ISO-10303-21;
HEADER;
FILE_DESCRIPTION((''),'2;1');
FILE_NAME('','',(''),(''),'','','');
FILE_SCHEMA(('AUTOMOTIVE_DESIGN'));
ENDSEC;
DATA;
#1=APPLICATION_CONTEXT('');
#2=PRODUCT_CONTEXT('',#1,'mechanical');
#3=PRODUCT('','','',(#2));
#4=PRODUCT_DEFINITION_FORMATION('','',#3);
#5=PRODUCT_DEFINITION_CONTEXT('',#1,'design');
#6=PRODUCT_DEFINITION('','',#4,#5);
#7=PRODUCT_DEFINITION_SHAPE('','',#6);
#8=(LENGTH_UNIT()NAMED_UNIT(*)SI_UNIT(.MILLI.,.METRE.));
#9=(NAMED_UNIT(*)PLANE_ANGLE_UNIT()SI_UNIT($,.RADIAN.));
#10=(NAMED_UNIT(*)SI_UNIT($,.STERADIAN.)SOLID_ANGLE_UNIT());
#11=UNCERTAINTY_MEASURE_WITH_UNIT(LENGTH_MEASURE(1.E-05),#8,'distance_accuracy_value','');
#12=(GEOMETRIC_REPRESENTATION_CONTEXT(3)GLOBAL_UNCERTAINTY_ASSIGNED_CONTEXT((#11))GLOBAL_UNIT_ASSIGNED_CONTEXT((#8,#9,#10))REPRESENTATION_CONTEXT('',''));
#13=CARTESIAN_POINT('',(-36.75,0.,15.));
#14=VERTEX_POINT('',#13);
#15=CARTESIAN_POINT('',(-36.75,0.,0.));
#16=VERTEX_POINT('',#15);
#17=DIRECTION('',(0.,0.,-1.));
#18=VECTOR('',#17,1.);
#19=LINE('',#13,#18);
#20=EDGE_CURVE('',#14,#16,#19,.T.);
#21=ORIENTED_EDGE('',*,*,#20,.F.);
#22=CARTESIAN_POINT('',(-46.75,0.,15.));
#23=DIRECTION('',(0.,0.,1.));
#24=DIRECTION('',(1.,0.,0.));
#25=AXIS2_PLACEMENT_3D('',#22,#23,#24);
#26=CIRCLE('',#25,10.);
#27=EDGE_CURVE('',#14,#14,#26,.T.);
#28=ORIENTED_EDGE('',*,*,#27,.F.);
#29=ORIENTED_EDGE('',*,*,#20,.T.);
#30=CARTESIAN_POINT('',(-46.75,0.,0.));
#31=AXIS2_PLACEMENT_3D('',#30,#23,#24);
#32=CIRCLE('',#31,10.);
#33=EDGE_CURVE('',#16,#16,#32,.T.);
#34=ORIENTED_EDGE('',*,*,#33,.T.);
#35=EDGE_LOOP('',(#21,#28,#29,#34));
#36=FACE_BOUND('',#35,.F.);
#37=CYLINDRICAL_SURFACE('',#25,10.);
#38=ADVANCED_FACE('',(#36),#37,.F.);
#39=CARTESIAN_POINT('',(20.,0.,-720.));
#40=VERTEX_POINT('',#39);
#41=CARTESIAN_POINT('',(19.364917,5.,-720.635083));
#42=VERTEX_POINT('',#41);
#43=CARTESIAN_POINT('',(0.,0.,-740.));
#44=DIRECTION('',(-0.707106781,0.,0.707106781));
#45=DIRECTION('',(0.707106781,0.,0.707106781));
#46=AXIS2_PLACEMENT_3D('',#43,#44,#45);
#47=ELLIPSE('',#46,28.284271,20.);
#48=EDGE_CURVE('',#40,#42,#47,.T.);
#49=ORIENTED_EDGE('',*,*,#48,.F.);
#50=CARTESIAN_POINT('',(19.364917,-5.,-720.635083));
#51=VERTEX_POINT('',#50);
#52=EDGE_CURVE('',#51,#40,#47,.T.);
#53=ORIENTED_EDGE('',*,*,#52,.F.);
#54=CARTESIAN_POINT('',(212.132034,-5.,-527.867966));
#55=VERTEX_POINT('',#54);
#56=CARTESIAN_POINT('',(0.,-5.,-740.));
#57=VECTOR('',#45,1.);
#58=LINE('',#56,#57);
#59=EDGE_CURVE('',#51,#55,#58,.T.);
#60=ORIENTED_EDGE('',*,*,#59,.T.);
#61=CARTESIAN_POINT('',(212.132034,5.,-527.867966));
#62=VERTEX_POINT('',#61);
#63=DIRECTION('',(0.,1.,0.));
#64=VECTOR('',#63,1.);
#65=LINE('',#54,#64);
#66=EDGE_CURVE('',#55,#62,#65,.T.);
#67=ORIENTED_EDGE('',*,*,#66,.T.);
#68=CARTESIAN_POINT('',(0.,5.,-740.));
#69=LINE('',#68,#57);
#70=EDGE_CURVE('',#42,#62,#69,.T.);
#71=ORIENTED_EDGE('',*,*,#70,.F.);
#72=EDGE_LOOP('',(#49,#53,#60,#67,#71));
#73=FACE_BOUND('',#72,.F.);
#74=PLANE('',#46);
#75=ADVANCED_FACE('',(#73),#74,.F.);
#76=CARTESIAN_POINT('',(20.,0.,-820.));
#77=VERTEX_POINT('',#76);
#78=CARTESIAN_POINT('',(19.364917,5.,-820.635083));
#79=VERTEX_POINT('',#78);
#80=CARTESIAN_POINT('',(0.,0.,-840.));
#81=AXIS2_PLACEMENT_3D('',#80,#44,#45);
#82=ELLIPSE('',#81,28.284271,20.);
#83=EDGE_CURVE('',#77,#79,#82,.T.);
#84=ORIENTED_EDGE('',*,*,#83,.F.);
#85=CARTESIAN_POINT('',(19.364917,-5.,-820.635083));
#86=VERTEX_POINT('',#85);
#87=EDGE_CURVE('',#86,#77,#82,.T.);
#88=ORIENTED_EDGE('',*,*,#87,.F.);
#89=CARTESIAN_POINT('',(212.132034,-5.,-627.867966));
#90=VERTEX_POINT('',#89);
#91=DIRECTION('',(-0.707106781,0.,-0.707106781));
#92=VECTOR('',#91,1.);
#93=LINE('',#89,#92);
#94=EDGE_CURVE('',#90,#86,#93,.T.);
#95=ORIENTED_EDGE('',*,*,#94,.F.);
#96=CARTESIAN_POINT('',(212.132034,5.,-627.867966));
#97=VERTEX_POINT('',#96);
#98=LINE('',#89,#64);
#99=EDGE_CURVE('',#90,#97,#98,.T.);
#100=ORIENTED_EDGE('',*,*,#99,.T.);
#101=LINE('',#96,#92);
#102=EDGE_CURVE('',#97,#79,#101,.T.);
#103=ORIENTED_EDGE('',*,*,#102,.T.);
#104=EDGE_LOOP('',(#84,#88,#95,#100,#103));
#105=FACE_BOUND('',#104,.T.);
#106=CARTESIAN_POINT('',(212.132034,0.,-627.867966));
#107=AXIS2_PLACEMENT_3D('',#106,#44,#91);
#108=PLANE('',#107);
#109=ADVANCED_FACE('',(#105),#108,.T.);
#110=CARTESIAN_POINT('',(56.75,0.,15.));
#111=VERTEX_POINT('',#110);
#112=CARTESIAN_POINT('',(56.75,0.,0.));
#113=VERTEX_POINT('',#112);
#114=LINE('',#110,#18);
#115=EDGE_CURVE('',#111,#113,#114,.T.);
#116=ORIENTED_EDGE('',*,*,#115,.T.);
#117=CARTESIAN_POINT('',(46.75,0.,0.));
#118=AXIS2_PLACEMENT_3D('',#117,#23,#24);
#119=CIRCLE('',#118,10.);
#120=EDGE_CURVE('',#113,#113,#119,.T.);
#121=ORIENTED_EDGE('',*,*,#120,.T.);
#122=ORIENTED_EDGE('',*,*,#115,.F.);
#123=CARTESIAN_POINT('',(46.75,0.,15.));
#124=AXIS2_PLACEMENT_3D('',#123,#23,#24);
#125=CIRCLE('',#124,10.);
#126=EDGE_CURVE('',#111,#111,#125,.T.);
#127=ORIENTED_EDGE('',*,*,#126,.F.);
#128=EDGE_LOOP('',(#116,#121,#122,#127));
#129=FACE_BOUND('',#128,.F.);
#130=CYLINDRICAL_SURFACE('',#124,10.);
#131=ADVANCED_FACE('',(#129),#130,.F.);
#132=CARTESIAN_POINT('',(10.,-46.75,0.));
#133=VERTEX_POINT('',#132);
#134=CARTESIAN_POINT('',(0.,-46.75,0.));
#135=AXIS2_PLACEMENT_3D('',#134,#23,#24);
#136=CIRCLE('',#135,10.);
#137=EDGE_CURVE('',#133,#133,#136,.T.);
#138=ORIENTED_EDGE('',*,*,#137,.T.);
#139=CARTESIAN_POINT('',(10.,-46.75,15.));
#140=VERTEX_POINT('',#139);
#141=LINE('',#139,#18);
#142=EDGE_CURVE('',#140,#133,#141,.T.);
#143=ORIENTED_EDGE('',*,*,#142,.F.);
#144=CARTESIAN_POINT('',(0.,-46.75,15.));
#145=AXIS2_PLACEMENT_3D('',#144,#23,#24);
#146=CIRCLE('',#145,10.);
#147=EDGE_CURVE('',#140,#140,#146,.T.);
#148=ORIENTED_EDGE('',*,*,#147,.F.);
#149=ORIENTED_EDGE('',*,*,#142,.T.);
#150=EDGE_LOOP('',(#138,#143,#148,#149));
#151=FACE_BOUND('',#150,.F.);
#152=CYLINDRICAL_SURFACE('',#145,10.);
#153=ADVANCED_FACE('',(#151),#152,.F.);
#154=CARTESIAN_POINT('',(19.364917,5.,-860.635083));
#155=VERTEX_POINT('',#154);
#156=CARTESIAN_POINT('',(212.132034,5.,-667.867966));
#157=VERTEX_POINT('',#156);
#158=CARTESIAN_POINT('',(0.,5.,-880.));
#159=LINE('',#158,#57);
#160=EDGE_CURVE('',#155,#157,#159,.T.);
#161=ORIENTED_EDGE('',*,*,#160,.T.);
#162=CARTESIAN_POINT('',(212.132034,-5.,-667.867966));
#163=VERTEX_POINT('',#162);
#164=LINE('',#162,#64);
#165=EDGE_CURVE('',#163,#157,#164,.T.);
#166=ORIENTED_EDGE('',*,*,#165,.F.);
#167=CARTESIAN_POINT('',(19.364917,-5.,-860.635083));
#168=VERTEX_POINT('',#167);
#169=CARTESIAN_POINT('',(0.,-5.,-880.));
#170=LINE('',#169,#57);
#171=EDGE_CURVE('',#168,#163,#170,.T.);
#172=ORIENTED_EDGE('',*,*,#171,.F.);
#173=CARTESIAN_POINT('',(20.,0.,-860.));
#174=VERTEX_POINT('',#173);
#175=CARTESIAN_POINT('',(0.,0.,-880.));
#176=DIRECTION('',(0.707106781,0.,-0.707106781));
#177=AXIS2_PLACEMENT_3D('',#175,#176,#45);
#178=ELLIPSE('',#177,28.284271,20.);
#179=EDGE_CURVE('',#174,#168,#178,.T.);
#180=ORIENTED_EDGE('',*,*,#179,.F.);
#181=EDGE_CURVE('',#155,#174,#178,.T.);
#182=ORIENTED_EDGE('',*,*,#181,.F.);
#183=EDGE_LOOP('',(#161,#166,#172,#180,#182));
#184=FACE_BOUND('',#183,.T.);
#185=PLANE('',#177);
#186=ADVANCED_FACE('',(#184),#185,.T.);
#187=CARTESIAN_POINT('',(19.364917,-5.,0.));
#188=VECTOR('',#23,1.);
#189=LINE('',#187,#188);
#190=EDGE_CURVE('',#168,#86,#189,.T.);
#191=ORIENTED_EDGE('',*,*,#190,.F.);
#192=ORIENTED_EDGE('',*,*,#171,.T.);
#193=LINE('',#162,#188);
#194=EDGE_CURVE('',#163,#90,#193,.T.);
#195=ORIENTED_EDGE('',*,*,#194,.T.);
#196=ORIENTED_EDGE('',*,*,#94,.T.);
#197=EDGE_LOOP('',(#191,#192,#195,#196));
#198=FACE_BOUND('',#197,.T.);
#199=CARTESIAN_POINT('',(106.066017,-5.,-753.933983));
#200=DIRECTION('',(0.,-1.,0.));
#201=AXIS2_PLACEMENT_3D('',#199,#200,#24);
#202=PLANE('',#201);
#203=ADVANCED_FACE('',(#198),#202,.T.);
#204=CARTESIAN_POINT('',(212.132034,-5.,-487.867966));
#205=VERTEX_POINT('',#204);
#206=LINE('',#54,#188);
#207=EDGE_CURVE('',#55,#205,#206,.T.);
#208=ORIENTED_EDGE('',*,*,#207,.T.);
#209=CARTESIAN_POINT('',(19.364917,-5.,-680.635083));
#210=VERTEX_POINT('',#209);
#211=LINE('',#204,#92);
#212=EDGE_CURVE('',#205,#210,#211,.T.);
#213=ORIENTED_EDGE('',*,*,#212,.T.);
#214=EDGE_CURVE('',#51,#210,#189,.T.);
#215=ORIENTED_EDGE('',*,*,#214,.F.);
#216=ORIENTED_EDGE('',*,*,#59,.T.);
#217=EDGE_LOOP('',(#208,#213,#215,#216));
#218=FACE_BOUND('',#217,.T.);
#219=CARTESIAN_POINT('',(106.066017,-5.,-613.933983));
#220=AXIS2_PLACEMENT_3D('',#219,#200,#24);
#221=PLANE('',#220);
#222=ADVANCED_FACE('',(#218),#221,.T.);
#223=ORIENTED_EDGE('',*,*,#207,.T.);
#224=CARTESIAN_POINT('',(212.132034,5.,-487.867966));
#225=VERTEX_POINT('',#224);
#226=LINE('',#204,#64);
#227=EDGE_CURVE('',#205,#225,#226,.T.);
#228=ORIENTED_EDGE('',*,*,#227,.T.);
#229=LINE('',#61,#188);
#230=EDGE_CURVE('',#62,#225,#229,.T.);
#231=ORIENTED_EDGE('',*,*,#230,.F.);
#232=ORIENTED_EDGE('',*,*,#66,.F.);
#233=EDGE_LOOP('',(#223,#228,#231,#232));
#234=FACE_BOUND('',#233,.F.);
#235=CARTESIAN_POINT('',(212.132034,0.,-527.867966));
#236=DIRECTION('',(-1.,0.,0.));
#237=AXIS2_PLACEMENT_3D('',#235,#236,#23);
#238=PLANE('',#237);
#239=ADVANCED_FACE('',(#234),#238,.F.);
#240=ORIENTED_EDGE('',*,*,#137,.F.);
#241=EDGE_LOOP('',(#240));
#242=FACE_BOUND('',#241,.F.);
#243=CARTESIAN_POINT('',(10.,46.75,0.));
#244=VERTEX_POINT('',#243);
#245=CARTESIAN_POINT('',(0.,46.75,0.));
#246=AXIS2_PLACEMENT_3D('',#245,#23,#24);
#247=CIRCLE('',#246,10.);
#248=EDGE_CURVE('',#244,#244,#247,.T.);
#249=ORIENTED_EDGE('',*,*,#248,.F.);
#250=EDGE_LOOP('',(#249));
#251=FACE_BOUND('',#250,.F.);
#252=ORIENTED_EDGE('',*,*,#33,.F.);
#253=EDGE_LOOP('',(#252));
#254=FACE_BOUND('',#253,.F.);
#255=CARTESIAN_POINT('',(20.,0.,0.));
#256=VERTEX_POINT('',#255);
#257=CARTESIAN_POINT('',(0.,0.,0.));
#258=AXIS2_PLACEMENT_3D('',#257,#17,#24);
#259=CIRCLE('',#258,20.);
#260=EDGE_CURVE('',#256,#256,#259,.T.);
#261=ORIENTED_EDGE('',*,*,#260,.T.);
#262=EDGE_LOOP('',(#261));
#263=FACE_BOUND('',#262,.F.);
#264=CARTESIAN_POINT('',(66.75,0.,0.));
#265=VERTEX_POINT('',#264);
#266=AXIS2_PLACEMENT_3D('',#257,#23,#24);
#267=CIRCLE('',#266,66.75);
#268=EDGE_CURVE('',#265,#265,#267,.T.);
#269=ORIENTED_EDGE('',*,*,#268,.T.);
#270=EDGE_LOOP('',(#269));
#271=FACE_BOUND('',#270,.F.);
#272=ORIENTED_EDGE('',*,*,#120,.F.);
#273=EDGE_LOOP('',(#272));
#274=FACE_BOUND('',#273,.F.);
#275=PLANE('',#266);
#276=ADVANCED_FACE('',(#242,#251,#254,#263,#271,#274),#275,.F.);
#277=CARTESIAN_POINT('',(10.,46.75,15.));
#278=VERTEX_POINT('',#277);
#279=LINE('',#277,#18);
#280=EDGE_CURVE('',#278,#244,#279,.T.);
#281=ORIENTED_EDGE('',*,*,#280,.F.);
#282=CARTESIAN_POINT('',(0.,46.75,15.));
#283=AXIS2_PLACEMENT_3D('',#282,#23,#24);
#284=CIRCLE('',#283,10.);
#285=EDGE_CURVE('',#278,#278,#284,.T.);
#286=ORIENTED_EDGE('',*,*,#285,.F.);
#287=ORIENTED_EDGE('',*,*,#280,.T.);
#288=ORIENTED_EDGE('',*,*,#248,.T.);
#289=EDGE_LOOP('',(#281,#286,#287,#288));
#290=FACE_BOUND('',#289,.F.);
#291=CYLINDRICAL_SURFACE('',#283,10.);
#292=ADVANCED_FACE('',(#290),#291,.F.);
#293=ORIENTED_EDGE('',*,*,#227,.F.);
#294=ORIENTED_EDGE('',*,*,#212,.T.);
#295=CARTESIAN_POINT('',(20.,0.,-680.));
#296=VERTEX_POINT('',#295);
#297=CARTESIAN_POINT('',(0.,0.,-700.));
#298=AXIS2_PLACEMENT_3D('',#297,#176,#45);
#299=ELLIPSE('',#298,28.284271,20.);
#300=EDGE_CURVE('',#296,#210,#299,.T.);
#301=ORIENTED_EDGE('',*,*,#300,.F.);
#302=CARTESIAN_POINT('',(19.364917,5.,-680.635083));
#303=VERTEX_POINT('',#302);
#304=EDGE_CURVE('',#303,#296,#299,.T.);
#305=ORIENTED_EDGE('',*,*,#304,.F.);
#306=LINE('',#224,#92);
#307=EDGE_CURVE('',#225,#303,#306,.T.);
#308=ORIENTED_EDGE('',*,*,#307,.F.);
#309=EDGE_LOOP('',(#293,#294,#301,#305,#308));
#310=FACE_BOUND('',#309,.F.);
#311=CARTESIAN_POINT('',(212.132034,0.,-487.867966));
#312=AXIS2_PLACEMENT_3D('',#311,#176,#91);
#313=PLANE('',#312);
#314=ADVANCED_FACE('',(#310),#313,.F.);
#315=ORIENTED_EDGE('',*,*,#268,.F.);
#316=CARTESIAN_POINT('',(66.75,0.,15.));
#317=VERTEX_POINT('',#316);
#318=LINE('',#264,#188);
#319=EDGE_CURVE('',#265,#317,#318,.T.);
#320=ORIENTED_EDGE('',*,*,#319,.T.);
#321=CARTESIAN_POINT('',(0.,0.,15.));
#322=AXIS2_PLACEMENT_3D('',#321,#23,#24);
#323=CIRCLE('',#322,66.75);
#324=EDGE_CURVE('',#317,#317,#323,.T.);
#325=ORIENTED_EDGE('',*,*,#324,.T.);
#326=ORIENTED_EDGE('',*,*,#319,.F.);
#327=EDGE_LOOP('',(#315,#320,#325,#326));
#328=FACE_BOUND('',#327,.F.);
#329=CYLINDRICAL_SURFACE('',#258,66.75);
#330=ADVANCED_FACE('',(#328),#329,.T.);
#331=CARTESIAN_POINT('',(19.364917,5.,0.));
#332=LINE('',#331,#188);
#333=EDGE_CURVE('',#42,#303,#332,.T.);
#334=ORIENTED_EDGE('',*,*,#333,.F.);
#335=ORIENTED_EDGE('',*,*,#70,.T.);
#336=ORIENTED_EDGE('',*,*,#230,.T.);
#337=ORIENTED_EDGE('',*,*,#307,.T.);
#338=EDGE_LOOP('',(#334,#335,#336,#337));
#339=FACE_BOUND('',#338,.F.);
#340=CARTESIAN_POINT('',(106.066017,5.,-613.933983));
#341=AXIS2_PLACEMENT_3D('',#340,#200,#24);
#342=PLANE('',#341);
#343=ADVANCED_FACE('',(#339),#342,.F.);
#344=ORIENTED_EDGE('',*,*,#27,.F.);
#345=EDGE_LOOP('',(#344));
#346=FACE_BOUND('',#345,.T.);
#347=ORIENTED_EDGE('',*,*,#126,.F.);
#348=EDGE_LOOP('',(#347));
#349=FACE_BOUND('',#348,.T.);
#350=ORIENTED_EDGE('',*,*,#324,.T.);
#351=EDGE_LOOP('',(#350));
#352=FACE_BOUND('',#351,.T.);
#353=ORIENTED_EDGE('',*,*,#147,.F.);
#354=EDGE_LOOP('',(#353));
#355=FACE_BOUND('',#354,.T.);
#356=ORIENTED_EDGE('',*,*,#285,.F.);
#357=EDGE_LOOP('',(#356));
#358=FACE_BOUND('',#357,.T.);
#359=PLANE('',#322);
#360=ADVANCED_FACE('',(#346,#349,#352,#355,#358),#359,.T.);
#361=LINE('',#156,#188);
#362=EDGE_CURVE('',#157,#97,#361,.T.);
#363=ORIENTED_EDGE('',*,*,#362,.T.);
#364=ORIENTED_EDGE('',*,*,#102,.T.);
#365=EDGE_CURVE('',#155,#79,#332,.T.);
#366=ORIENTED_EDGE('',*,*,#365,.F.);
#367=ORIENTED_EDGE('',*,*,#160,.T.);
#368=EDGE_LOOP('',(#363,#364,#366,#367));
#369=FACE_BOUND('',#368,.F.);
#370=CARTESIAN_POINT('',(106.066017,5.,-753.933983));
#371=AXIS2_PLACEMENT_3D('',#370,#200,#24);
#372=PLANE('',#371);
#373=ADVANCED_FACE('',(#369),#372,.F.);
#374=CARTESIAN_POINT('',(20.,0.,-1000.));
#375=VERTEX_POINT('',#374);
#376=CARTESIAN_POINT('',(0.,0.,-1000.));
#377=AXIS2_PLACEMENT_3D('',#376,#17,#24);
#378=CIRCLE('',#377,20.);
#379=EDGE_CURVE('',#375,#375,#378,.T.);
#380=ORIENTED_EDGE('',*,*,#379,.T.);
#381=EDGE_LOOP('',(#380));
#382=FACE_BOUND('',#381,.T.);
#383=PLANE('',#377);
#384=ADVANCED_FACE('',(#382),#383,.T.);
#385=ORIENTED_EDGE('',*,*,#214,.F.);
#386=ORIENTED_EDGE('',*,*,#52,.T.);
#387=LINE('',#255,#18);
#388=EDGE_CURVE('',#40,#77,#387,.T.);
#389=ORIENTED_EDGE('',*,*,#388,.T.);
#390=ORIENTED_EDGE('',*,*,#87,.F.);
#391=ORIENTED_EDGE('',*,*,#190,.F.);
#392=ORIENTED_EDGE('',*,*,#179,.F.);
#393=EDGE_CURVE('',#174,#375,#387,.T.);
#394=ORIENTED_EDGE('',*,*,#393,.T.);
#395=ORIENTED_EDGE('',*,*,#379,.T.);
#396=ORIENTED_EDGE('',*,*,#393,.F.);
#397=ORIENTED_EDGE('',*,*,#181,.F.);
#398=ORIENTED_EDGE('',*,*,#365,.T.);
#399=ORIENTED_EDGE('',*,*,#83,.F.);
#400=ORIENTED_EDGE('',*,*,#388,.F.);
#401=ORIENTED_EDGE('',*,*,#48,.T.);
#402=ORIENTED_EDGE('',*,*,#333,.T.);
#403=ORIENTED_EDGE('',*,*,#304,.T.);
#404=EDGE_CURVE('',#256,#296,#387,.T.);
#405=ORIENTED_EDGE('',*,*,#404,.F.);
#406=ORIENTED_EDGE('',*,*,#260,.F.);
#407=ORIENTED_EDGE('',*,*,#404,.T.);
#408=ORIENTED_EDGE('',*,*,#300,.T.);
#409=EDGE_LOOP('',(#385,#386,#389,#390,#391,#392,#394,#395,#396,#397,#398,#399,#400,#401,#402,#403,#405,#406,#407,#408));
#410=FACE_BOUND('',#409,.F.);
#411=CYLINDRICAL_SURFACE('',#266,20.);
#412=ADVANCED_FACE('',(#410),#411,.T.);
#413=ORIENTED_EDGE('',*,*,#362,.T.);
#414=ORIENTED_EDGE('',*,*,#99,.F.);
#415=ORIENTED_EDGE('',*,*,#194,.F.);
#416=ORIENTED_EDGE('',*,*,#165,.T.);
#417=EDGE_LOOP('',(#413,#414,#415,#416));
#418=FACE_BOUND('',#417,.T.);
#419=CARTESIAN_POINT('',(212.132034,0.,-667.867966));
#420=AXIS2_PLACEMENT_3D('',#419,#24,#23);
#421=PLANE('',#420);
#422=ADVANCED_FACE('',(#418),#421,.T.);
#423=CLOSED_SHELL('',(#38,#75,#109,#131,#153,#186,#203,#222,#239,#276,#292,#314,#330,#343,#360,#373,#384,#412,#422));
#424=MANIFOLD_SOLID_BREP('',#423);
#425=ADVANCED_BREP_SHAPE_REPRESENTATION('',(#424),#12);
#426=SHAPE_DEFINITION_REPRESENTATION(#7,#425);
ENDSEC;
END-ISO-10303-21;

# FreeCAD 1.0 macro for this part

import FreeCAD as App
import Part
import Sketcher
Q = App.Units.Quantity


def add_polygon(sketch, points):
    """Adds a closed chain of lines whose ends are joined by coincident constraints."""
    first, n = sketch.GeometryCount, len(points)
    for a, b in zip(points, points[1:] + points[:1]):
        sketch.addGeometry(Part.LineSegment(App.Vector(*a, 0), App.Vector(*b, 0)), False)
    for i in range(n):
        sketch.addConstraint(Sketcher.Constraint("Coincident", first + i, 2, first + (i + 1) % n, 1))

doc = App.newDocument("Part")
params = doc.addObject("Spreadsheet::Sheet", "Params")
for row, (alias, value) in enumerate([
    ("sketch1_diameter", "133.5 mm"),
    ("pad1_length", "15 mm"),
    ("sketch2_diameter", "40 mm"),
    ("pad2_length", "1000 mm"),
    ("sketch3_height", "40 mm"),
    ("sketch3_length", "299.999999 mm"),
    ("pad3_length", "10 mm"),
    ("sketch4_diameter", "20 mm"),
    ("pocket1_length", "50.8 mm"),
], start=1):
    params.set(f"A{row}", alias)
    params.set(f"B{row}", "=" + value)
    params.setAlias(f"B{row}", alias)

body = doc.addObject("PartDesign::Body", "Body")

sketch1 = body.newObject("Sketcher::SketchObject", "Sketch")
sketch1.AttachmentSupport = (doc.getObject("XY_Plane"), [""])
sketch1.MapMode = "FlatFace"
sketch1.addGeometry(Part.Circle(App.Vector(0, 0, 0), App.Vector(0, 0, 1), 66.75), False)
sketch1.addConstraint(Sketcher.Constraint("Coincident", 0, 3, -1, 1))
sketch1.addConstraint(Sketcher.Constraint("Diameter", 0, Q("133.5 mm")))
sketch1.setExpression("Constraints[1]", "Params.sketch1_diameter")
pad1 = body.newObject("PartDesign::Pad", "Pad")
pad1.Profile = sketch1
pad1.setExpression("Length", "Params.pad1_length")

sketch2 = body.newObject("Sketcher::SketchObject", "Sketch001")
sketch2.AttachmentSupport = (doc.getObject("XY_Plane"), [""])
sketch2.MapMode = "FlatFace"
sketch2.addGeometry(Part.Circle(App.Vector(0, 0, 0), App.Vector(0, 0, 1), 20), False)
sketch2.addConstraint(Sketcher.Constraint("Coincident", 0, 3, -1, 1))
sketch2.addConstraint(Sketcher.Constraint("Diameter", 0, Q("40 mm")))
sketch2.setExpression("Constraints[1]", "Params.sketch2_diameter")
pad2 = body.newObject("PartDesign::Pad", "Pad001")
pad2.Profile = sketch2
pad2.setExpression("Length", "Params.pad2_length")
pad2.Reversed = True

sketch3 = body.newObject("Sketcher::SketchObject", "Sketch002")
sketch3.AttachmentSupport = (doc.getObject("XZ_Plane"), [""])
sketch3.MapMode = "FlatFace"
add_polygon(sketch3, [(212.132034, -487.867966), (0, -700), (0, -740), (212.132034, -527.867966)])
add_polygon(sketch3, [(212.132034, -627.867966), (0, -840), (0, -880), (212.132034, -667.867966)])
sketch3.addConstraint(Sketcher.Constraint("Vertical", 1))
sketch3.addConstraint(Sketcher.Constraint("Vertical", 3))
sketch3.addConstraint(Sketcher.Constraint("Vertical", 5))
sketch3.addConstraint(Sketcher.Constraint("Vertical", 7))
sketch3.addConstraint(Sketcher.Constraint("PointOnObject", 0, 2, -2))
sketch3.addConstraint(Sketcher.Constraint("PointOnObject", 4, 2, -2))
sketch3.addConstraint(Sketcher.Constraint("Parallel", 0, 2))
sketch3.addConstraint(Sketcher.Constraint("Parallel", 2, 4))
sketch3.addConstraint(Sketcher.Constraint("Parallel", 4, 6))
sketch3.addConstraint(Sketcher.Constraint("Vertical", 3, 2, 6, 2))
sketch3.addConstraint(Sketcher.Constraint("Equal", 3, 5))
sketch3.addConstraint(Sketcher.Constraint("DistanceY", 1, 2, 1, 1, Q("40 mm")))
sketch3.addConstraint(Sketcher.Constraint("Angle", 0, Q("-135 deg")))
sketch3.addConstraint(Sketcher.Constraint("Distance", 0, Q("299.999999 mm")))
sketch3.addConstraint(Sketcher.Constraint("DistanceY", 0, 2, -1, 1, Q("700 mm")))
sketch3.addConstraint(Sketcher.Constraint("DistanceY", 4, 2, -1, 1, Q("840 mm")))
sketch3.setExpression("Constraints[19]", "Params.sketch3_height")
sketch3.setExpression("Constraints[21]", "Params.sketch3_length")
pad3 = body.newObject("PartDesign::Pad", "Pad002")
pad3.Profile = sketch3
pad3.setExpression("Length", "Params.pad3_length")
pad3.Midplane = True

sketch4 = body.newObject("Sketcher::SketchObject", "Sketch003")
sketch4.AttachmentSupport = (doc.getObject("XY_Plane"), [""])
sketch4.MapMode = "FlatFace"
sketch4.AttachmentOffset = App.Placement(App.Vector(0, 0, 15), App.Rotation())
sketch4.addGeometry(Part.Circle(App.Vector(0, -46.75, 0), App.Vector(0, 0, 1), 10), False)
sketch4.addGeometry(Part.Circle(App.Vector(46.75, 0, 0), App.Vector(0, 0, 1), 10), False)
sketch4.addGeometry(Part.Circle(App.Vector(0, 46.75, 0), App.Vector(0, 0, 1), 10), False)
sketch4.addGeometry(Part.Circle(App.Vector(-46.75, 0, 0), App.Vector(0, 0, 1), 10), False)
sketch4.addConstraint(Sketcher.Constraint("Equal", 0, 1))
sketch4.addConstraint(Sketcher.Constraint("Equal", 1, 2))
sketch4.addConstraint(Sketcher.Constraint("Equal", 2, 3))
sketch4.addConstraint(Sketcher.Constraint("Symmetric", 0, 3, 2, 3, -1, 1))
sketch4.addConstraint(Sketcher.Constraint("Symmetric", 1, 3, 3, 3, -1, 1))
sketch4.addConstraint(Sketcher.Constraint("PointOnObject", 0, 3, -2))
sketch4.addConstraint(Sketcher.Constraint("PointOnObject", 1, 3, -1))
sketch4.addConstraint(Sketcher.Constraint("Diameter", 0, Q("20 mm")))
sketch4.addConstraint(Sketcher.Constraint("DistanceY", 0, 3, 2, 3, Q("93.5 mm")))
sketch4.addConstraint(Sketcher.Constraint("DistanceX", 3, 3, 1, 3, Q("93.5 mm")))
sketch4.setExpression("Constraints[7]", "Params.sketch4_diameter")
pocket1 = body.newObject("PartDesign::Pocket", "Pocket")
pocket1.Profile = sketch4
pocket1.setExpression("Length", "Params.pocket1_length")

doc.recompute()
